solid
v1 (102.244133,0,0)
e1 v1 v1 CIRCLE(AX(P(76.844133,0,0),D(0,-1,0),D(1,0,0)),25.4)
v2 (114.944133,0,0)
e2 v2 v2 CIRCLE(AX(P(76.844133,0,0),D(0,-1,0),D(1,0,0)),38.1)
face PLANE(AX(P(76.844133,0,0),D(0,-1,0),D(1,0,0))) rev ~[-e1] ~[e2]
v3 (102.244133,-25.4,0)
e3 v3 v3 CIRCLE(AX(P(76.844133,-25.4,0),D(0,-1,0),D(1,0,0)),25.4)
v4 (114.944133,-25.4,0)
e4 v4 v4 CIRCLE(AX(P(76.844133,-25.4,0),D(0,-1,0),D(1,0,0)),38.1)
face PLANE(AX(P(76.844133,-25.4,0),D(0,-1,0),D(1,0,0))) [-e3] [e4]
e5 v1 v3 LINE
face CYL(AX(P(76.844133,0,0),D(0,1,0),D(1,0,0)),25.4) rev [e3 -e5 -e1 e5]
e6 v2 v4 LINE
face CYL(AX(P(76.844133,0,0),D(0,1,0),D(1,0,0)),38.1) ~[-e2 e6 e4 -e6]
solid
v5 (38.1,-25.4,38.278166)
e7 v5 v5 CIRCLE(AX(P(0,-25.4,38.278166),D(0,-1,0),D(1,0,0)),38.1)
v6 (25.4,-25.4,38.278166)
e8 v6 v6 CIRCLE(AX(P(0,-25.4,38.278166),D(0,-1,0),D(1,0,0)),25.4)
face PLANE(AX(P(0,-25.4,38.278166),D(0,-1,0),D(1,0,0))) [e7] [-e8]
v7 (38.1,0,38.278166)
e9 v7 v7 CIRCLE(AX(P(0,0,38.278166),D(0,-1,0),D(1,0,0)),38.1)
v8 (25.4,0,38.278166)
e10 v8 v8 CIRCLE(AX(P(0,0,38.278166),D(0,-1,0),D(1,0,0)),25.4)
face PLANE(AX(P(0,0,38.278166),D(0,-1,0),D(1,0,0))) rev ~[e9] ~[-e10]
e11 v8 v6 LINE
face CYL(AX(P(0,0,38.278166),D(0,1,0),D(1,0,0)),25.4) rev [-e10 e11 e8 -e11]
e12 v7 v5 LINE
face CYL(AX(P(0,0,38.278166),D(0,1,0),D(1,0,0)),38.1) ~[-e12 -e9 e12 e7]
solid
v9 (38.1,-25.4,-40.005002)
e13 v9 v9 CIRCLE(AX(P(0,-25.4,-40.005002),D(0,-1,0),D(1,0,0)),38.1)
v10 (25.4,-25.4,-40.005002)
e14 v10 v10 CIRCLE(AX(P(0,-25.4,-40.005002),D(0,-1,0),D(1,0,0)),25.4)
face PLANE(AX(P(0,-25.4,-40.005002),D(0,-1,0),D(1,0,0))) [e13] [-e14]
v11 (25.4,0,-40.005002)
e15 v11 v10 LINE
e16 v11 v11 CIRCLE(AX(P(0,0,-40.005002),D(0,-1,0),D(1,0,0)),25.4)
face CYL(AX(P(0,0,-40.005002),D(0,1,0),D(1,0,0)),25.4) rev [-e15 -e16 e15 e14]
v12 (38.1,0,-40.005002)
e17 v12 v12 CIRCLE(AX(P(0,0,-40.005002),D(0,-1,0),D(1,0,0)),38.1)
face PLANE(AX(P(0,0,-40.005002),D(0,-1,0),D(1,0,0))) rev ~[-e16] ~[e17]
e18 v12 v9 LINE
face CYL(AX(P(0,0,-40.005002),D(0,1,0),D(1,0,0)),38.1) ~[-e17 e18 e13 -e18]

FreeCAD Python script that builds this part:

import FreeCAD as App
import Part
import Sketcher
from FreeCAD import Vector
Q = App.Units.Quantity

doc = App.newDocument("Part")
body = doc.addObject("PartDesign::Body", "Body")
body.AllowCompound = True

# Sketch on XZ plane
sketch1 = body.newObject("Sketcher::SketchObject", "Sketch")
sketch1.AttachmentSupport = (doc.getObject("XZ_Plane"), [""])
sketch1.MapMode = "FlatFace"
sketch1.addGeometry([
    Part.Circle(Vector(0, 38, 0), Vector(0, 0, 1), 38),  # 0
    Part.Circle(Vector(0, 38, 0), Vector(0, 0, 1), 25),  # 1
    Part.Circle(Vector(0, -40, 0), Vector(0, 0, 1), 38),  # 2
    Part.Circle(Vector(0, -40, 0), Vector(0, 0, 1), 25),  # 3
    Part.Circle(Vector(77, 0, 0), Vector(0, 0, 1), 38),  # 4
    Part.Circle(Vector(77, 0, 0), Vector(0, 0, 1), 25),  # 5
], False)
sketch1.addConstraint([
    Sketcher.Constraint("Coincident", 1, 3, 0, 3),
    Sketcher.Constraint("Coincident", 3, 3, 2, 3),
    Sketcher.Constraint("Coincident", 5, 3, 4, 3),
    Sketcher.Constraint("Equal", 0, 2),
    Sketcher.Constraint("Equal", 1, 3),
    Sketcher.Constraint("Equal", 2, 4),
    Sketcher.Constraint("Equal", 3, 5),
    Sketcher.Constraint("PointOnObject", 0, 3, -2),
    Sketcher.Constraint("PointOnObject", 2, 3, -2),
    Sketcher.Constraint("PointOnObject", 4, 3, -1),
    Sketcher.Constraint("Diameter", 0, Q("3 in")),
    Sketcher.Constraint("Diameter", 1, Q("2 in")),
    Sketcher.Constraint("DistanceY", 2, 3, -1, 1, Q("1.5750001 in")),
    Sketcher.Constraint("DistanceY", -1, 1, 0, 3, 38.278166),
    Sketcher.Constraint("DistanceX", -1, 1, 4, 3, 76.844133),
])
pad1 = body.newObject("PartDesign::Pad", "Pad")
pad1.Profile = sketch1
pad1.Length = Q("1 in")

doc.recompute()
